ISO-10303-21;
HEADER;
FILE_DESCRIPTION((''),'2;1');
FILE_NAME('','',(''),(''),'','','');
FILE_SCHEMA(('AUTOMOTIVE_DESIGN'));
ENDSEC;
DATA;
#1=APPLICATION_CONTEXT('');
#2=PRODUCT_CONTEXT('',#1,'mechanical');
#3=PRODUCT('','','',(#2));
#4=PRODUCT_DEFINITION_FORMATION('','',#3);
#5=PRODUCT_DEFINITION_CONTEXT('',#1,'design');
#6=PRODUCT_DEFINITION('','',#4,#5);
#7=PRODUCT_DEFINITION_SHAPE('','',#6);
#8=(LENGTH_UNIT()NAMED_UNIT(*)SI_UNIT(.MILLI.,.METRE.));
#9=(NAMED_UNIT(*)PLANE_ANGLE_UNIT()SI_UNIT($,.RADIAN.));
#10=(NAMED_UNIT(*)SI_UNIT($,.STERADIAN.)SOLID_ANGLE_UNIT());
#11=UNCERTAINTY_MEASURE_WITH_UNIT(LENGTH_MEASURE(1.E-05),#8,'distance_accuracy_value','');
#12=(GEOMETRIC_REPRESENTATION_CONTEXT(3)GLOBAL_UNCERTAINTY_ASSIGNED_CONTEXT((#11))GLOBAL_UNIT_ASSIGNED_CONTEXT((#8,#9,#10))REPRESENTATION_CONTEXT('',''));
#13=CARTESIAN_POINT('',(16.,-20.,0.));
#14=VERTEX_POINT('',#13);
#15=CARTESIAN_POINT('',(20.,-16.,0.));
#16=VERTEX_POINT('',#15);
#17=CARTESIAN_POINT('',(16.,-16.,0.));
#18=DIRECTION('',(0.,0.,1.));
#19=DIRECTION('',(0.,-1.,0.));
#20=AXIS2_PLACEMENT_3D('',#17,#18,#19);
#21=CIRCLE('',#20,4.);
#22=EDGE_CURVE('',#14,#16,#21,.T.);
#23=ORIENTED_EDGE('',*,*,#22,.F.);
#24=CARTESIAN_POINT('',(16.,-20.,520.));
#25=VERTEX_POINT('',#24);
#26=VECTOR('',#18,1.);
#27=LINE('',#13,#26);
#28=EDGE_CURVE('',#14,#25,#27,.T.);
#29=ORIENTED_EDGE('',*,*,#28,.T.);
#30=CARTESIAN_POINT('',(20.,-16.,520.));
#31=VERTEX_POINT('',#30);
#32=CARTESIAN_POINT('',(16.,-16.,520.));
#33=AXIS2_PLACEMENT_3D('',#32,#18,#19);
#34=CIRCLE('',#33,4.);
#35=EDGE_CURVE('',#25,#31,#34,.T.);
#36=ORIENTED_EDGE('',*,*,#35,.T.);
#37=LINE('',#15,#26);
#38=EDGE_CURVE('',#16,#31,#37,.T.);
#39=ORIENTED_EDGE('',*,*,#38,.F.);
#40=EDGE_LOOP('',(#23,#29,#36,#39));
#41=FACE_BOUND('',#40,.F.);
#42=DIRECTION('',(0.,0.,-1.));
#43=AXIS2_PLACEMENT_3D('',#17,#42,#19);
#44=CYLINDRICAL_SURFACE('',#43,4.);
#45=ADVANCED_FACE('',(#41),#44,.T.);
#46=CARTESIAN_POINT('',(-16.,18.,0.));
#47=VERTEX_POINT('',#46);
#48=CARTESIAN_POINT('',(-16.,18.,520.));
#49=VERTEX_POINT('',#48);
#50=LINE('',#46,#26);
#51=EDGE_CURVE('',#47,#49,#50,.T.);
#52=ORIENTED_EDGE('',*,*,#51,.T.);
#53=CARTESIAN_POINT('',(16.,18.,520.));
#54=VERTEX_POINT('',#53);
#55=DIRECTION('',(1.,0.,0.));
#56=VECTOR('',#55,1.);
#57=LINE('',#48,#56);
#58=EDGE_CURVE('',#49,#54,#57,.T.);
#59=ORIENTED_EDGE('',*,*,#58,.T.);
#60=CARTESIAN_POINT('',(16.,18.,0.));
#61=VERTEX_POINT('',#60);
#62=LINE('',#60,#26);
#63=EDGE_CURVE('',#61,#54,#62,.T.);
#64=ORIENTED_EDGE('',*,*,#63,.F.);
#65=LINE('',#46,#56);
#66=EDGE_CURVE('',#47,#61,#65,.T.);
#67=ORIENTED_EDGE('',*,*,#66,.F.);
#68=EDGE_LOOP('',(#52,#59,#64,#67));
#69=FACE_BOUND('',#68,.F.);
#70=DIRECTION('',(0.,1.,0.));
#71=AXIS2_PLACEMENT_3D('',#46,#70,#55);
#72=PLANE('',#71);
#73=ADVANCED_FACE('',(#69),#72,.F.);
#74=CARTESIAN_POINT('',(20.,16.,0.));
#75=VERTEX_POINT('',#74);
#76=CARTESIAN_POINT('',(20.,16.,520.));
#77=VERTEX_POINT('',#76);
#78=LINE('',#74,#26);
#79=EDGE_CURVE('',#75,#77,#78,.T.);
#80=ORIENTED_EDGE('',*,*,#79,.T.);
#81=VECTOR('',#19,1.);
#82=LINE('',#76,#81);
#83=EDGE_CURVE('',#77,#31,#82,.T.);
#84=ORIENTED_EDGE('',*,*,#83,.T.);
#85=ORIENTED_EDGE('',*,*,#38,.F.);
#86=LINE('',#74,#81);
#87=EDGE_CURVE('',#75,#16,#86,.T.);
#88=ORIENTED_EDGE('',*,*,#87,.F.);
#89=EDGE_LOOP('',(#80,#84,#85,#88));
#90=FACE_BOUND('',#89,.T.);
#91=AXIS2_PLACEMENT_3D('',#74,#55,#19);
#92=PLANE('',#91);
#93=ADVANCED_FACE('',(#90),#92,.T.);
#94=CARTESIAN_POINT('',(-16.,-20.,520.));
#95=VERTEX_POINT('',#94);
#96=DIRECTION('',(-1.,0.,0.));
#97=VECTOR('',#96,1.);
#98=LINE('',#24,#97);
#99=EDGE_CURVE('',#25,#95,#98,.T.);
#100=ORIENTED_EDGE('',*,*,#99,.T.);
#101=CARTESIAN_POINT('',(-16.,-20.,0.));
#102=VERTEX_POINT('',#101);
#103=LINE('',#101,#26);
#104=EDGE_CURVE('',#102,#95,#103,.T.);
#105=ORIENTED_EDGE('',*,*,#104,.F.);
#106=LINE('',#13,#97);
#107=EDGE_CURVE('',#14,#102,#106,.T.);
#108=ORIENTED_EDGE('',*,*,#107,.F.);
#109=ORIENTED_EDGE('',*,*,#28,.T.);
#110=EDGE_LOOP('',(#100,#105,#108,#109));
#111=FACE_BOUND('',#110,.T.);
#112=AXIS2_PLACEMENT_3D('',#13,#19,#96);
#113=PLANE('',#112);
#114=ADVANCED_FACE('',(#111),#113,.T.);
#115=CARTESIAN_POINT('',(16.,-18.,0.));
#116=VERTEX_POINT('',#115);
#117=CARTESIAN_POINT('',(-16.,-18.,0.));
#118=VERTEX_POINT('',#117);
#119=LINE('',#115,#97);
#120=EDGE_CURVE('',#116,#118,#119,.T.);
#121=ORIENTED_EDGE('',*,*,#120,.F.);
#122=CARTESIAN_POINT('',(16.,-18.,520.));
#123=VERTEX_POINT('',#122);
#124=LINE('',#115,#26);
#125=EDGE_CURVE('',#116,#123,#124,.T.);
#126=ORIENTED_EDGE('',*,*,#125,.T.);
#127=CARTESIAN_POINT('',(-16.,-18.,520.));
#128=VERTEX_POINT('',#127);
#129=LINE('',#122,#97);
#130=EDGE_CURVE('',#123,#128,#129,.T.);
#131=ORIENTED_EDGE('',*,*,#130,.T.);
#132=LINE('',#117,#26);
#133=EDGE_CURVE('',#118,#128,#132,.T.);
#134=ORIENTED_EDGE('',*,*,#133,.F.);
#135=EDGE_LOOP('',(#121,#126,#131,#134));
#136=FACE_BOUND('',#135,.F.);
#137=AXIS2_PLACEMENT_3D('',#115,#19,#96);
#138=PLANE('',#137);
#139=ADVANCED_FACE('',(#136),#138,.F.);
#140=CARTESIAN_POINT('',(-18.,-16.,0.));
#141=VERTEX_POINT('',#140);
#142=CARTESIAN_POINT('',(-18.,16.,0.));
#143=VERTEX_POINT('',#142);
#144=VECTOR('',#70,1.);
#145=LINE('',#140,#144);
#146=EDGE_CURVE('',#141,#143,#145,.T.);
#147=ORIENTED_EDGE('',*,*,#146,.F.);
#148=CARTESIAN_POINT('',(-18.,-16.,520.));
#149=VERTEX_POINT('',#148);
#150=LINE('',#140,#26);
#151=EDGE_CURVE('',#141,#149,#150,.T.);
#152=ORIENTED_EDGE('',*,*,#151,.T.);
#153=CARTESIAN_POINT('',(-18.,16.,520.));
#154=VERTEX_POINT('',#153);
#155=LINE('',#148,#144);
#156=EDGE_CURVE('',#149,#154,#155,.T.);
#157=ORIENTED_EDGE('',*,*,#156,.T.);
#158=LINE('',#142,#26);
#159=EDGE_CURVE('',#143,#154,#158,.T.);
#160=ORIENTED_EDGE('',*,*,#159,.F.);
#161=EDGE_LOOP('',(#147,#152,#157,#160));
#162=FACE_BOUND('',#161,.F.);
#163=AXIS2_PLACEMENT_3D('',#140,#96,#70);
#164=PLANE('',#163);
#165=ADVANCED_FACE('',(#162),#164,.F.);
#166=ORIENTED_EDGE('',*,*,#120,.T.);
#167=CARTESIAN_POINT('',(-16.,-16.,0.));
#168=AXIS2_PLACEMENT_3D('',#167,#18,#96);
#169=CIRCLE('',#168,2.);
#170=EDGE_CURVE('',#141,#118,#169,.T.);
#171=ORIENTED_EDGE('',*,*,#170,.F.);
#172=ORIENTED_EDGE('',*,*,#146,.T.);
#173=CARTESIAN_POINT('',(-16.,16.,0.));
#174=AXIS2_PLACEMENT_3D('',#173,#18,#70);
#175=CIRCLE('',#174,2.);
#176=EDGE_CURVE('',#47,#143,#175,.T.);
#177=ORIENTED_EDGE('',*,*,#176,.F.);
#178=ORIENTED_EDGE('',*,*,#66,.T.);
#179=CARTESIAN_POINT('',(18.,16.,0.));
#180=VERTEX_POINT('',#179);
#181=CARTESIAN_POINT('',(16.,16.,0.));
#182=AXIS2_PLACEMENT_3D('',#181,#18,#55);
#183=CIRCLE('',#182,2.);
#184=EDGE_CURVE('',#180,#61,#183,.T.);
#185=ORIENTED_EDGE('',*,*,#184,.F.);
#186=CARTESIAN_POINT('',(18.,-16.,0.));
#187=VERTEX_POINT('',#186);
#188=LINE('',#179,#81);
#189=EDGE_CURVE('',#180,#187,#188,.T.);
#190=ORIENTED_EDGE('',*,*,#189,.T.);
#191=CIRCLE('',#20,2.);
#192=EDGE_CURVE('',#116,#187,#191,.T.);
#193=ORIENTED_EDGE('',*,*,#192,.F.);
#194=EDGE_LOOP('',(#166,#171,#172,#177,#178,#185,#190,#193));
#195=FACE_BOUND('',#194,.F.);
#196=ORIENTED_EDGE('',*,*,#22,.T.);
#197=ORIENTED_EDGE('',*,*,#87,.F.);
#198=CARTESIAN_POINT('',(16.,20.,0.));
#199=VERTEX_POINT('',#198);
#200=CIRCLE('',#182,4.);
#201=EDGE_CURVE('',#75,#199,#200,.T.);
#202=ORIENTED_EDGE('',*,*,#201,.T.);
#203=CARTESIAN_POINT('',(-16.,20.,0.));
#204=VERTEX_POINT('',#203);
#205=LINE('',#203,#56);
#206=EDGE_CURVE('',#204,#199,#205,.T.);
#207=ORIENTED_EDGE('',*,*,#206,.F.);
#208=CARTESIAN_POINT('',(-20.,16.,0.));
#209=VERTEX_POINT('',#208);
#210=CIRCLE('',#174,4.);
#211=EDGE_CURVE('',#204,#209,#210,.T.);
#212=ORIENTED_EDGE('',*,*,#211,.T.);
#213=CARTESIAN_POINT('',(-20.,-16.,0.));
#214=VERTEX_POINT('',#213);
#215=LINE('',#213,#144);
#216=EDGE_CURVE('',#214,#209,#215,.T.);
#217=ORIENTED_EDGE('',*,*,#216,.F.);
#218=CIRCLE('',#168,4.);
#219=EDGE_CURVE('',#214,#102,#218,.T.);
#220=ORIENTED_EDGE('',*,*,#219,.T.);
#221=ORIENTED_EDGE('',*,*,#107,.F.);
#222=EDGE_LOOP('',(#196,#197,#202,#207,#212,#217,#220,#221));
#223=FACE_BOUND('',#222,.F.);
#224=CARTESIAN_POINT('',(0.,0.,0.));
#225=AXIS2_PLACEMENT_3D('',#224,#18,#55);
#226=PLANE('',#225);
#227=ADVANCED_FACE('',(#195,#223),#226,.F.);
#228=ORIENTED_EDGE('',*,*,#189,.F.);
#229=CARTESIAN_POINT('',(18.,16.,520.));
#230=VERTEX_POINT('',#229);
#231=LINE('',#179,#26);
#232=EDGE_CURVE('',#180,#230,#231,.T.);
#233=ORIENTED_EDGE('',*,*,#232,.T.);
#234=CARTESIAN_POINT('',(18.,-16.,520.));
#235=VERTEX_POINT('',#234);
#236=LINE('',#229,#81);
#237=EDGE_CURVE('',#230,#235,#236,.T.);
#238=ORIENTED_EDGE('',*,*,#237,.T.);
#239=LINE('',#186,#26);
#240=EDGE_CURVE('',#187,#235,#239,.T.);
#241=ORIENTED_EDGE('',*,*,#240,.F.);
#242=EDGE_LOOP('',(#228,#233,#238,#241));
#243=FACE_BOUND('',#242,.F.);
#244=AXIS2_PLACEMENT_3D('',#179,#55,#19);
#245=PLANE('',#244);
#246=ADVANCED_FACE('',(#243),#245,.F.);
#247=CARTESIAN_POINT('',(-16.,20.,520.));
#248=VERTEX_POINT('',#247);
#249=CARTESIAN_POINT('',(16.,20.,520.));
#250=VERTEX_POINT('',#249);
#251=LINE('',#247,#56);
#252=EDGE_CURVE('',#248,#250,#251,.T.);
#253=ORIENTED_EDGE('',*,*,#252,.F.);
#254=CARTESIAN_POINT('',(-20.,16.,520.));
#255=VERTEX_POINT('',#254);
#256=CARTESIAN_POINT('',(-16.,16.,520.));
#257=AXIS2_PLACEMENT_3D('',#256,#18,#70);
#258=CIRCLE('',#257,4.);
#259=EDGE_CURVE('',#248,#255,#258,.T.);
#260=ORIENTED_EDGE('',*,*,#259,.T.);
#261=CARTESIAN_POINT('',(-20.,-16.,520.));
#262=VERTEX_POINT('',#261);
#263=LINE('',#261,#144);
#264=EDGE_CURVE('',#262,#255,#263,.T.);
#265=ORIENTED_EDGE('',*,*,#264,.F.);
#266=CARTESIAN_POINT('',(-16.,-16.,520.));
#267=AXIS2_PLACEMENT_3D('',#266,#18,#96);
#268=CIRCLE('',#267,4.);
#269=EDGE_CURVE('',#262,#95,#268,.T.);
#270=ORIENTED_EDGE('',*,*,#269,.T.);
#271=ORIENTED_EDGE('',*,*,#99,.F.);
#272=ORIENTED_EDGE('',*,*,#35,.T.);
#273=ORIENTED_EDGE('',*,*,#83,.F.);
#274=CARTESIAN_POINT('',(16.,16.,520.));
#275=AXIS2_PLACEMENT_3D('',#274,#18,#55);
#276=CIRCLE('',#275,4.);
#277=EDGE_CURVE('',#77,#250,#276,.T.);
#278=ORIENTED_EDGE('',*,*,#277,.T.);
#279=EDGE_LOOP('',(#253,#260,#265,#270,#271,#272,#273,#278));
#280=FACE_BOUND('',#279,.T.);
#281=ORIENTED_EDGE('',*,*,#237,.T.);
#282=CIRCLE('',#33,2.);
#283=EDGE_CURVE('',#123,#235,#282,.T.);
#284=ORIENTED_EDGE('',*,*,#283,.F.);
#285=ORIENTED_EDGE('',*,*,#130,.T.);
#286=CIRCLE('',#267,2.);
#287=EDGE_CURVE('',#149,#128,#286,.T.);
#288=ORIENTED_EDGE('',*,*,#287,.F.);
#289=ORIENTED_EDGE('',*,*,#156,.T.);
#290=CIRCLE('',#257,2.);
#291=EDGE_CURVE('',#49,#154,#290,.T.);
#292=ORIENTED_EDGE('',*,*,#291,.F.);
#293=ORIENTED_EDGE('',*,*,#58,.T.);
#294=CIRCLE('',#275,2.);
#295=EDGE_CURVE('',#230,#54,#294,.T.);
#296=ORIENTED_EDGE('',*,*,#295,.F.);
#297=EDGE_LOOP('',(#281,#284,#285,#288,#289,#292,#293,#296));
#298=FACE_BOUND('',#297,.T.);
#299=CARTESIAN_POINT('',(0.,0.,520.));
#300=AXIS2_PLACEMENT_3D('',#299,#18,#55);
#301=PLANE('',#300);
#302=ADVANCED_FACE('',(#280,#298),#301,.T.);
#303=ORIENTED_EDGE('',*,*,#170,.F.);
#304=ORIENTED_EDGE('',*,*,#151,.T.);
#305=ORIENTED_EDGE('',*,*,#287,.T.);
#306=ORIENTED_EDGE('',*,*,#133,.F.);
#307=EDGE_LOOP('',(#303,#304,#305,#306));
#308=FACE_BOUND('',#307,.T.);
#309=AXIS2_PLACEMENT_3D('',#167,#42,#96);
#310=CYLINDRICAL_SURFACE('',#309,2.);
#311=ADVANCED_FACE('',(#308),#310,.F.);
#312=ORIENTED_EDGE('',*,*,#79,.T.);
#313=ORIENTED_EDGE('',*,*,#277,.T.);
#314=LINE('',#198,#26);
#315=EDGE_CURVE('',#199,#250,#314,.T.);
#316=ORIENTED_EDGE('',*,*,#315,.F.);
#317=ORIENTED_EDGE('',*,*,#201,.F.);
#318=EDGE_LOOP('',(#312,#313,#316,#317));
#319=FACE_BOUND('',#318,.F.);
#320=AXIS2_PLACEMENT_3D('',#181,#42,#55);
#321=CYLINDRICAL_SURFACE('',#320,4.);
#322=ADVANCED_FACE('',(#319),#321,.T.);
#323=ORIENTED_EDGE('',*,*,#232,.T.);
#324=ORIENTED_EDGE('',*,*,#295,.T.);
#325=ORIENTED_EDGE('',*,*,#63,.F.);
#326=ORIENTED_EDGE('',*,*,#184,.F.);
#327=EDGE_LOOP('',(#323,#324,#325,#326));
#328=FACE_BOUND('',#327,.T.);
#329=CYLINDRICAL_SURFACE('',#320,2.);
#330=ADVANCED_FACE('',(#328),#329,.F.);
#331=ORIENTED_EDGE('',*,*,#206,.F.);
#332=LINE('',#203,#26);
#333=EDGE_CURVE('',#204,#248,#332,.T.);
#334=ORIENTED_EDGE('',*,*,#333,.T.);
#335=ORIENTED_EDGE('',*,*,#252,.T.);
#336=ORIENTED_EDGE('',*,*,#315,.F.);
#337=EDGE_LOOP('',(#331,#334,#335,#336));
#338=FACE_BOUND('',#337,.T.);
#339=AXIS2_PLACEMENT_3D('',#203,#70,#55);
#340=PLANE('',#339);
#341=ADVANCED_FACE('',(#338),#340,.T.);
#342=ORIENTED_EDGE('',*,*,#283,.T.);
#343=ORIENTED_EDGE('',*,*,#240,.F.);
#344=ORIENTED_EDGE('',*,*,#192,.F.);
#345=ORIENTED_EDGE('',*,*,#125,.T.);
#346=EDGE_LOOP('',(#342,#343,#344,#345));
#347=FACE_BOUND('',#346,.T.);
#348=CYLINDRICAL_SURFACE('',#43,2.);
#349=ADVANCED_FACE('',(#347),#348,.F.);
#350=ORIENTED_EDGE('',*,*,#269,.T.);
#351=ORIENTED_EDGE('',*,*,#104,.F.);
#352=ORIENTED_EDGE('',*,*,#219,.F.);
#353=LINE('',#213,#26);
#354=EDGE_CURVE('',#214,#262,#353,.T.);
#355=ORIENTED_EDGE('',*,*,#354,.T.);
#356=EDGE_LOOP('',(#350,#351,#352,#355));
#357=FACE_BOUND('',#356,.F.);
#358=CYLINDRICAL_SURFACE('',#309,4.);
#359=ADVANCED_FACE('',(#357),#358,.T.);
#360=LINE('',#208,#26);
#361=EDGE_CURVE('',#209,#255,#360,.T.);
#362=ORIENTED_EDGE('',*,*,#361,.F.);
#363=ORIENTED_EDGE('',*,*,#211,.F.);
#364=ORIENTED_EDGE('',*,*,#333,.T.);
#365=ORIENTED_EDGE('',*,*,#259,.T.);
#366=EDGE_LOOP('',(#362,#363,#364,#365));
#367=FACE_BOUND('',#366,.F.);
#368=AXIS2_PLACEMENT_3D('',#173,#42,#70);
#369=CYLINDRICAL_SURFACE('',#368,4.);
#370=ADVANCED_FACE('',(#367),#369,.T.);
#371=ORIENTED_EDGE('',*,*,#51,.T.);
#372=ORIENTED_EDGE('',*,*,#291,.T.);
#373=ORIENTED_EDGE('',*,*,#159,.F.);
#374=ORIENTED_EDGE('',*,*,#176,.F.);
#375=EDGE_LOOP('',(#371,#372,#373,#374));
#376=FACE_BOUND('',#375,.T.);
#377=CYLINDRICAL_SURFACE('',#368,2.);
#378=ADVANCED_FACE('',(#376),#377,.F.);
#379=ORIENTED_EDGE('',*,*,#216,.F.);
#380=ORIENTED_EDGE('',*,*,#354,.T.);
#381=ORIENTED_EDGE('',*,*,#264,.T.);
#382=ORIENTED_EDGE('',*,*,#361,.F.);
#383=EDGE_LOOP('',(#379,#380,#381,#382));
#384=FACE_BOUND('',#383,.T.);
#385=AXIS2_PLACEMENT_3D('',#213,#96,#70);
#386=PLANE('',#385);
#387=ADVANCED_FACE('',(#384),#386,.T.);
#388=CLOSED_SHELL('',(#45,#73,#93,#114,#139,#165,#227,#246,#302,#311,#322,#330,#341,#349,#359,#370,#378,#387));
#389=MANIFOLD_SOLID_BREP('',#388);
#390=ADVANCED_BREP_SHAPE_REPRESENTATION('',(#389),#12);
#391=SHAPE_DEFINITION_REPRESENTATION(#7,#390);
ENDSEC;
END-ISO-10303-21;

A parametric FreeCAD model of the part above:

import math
import FreeCAD as App
import Part
import Sketcher
from FreeCAD import Vector
Q = App.Units.Quantity

doc = App.newDocument("Part")
body = doc.addObject("PartDesign::Body", "Body")

# Sketch on XY plane
sketch1 = body.newObject("Sketcher::SketchObject", "Sketch")
sketch1.AttachmentSupport = (doc.getObject("XY_Plane"), [""])
sketch1.MapMode = "FlatFace"
sketch1.addGeometry(Part.LineSegment(Vector(-20, 16, 0), Vector(-20, -16, 0)), False)
sketch1.addGeometry(Part.ArcOfCircle(Part.Circle(Vector(-16, -16, 0), Vector(0, 0, 1), 4), math.radians(180), math.radians(270)), False)
sketch1.addGeometry(Part.LineSegment(Vector(-16, -20, 0), Vector(16, -20, 0)), False)
sketch1.addGeometry(Part.ArcOfCircle(Part.Circle(Vector(16, -16, 0), Vector(0, 0, 1), 4), math.radians(-90), math.radians(0)), False)
sketch1.addGeometry(Part.LineSegment(Vector(20, -16, 0), Vector(20, 16, 0)), False)
sketch1.addGeometry(Part.ArcOfCircle(Part.Circle(Vector(16, 16, 0), Vector(0, 0, 1), 4), math.radians(0), math.radians(90)), False)
sketch1.addGeometry(Part.LineSegment(Vector(16, 20, 0), Vector(-16, 20, 0)), False)
sketch1.addGeometry(Part.ArcOfCircle(Part.Circle(Vector(-16, 16, 0), Vector(0, 0, 1), 4), math.radians(90), math.radians(180)), False)
sketch1.addGeometry(Part.ArcOfCircle(Part.Circle(Vector(-16, 16, 0), Vector(0, 0, 1), 2), math.radians(90), math.radians(180)), False)
sketch1.addGeometry(Part.LineSegment(Vector(-16, 18, 0), Vector(16, 18, 0)), False)
sketch1.addGeometry(Part.ArcOfCircle(Part.Circle(Vector(16, 16, 0), Vector(0, 0, 1), 2), math.radians(0), math.radians(90)), False)
sketch1.addGeometry(Part.LineSegment(Vector(18, 16, 0), Vector(18, -16, 0)), False)
sketch1.addGeometry(Part.ArcOfCircle(Part.Circle(Vector(16, -16, 0), Vector(0, 0, 1), 2), math.radians(-90), math.radians(0)), False)
sketch1.addGeometry(Part.LineSegment(Vector(16, -18, 0), Vector(-16, -18, 0)), False)
sketch1.addGeometry(Part.ArcOfCircle(Part.Circle(Vector(-16, -16, 0), Vector(0, 0, 1), 2), math.radians(180), math.radians(270)), False)
sketch1.addGeometry(Part.LineSegment(Vector(-18, -16, 0), Vector(-18, 16, 0)), False)
sketch1.addConstraint(Sketcher.Constraint("Tangent", 0, 2, 1, 1))
sketch1.addConstraint(Sketcher.Constraint("Tangent", 1, 2, 2, 1))
sketch1.addConstraint(Sketcher.Constraint("Tangent", 2, 2, 3, 1))
sketch1.addConstraint(Sketcher.Constraint("Tangent", 3, 2, 4, 1))
sketch1.addConstraint(Sketcher.Constraint("Tangent", 4, 2, 5, 1))
sketch1.addConstraint(Sketcher.Constraint("Tangent", 5, 2, 6, 1))
sketch1.addConstraint(Sketcher.Constraint("Tangent", 6, 2, 7, 1))
sketch1.addConstraint(Sketcher.Constraint("Tangent", 7, 2, 0, 1))
sketch1.addConstraint(Sketcher.Constraint("Tangent", 8, 1, 9, 1))
sketch1.addConstraint(Sketcher.Constraint("Tangent", 9, 2, 10, 2))
sketch1.addConstraint(Sketcher.Constraint("Tangent", 10, 1, 11, 1))
sketch1.addConstraint(Sketcher.Constraint("Tangent", 11, 2, 12, 2))
sketch1.addConstraint(Sketcher.Constraint("Tangent", 12, 1, 13, 1))
sketch1.addConstraint(Sketcher.Constraint("Tangent", 13, 2, 14, 2))
sketch1.addConstraint(Sketcher.Constraint("Tangent", 14, 1, 15, 1))
sketch1.addConstraint(Sketcher.Constraint("Tangent", 15, 2, 8, 2))
sketch1.addConstraint(Sketcher.Constraint("Vertical", 0))
sketch1.addConstraint(Sketcher.Constraint("Horizontal", 2))
sketch1.addConstraint(Sketcher.Constraint("Vertical", 4))
sketch1.addConstraint(Sketcher.Constraint("Horizontal", 6))
sketch1.addConstraint(Sketcher.Constraint("Horizontal", 9))
sketch1.addConstraint(Sketcher.Constraint("Vertical", 11))
sketch1.addConstraint(Sketcher.Constraint("Horizontal", 13))
sketch1.addConstraint(Sketcher.Constraint("Vertical", 15))
sketch1.addConstraint(Sketcher.Constraint("Coincident", 8, 3, 7, 3))
sketch1.addConstraint(Sketcher.Constraint("Coincident", 10, 3, 5, 3))
sketch1.addConstraint(Sketcher.Constraint("Coincident", 12, 3, 3, 3))
sketch1.addConstraint(Sketcher.Constraint("Equal", 1, 3))
sketch1.addConstraint(Sketcher.Constraint("Equal", 3, 5))
sketch1.addConstraint(Sketcher.Constraint("Equal", 5, 7))
sketch1.addConstraint(Sketcher.Constraint("Equal", 12, 14))
sketch1.addConstraint(Sketcher.Constraint("Symmetric", 1, 3, 5, 3, -1, 1))
sketch1.addConstraint(Sketcher.Constraint("Equal", 13, 0))
sketch1.addConstraint(Sketcher.Constraint("Radius", 1, Q("4 mm")))
sketch1.addConstraint(Sketcher.Constraint("Radius", 8, Q("2 mm")))
sketch1.addConstraint(Sketcher.Constraint("DistanceX", 0, 2, -1, 1, Q("20 mm")))
pad1 = body.newObject("PartDesign::Pad", "Pad")
pad1.Profile = sketch1
pad1.Length = 520

doc.recompute()
